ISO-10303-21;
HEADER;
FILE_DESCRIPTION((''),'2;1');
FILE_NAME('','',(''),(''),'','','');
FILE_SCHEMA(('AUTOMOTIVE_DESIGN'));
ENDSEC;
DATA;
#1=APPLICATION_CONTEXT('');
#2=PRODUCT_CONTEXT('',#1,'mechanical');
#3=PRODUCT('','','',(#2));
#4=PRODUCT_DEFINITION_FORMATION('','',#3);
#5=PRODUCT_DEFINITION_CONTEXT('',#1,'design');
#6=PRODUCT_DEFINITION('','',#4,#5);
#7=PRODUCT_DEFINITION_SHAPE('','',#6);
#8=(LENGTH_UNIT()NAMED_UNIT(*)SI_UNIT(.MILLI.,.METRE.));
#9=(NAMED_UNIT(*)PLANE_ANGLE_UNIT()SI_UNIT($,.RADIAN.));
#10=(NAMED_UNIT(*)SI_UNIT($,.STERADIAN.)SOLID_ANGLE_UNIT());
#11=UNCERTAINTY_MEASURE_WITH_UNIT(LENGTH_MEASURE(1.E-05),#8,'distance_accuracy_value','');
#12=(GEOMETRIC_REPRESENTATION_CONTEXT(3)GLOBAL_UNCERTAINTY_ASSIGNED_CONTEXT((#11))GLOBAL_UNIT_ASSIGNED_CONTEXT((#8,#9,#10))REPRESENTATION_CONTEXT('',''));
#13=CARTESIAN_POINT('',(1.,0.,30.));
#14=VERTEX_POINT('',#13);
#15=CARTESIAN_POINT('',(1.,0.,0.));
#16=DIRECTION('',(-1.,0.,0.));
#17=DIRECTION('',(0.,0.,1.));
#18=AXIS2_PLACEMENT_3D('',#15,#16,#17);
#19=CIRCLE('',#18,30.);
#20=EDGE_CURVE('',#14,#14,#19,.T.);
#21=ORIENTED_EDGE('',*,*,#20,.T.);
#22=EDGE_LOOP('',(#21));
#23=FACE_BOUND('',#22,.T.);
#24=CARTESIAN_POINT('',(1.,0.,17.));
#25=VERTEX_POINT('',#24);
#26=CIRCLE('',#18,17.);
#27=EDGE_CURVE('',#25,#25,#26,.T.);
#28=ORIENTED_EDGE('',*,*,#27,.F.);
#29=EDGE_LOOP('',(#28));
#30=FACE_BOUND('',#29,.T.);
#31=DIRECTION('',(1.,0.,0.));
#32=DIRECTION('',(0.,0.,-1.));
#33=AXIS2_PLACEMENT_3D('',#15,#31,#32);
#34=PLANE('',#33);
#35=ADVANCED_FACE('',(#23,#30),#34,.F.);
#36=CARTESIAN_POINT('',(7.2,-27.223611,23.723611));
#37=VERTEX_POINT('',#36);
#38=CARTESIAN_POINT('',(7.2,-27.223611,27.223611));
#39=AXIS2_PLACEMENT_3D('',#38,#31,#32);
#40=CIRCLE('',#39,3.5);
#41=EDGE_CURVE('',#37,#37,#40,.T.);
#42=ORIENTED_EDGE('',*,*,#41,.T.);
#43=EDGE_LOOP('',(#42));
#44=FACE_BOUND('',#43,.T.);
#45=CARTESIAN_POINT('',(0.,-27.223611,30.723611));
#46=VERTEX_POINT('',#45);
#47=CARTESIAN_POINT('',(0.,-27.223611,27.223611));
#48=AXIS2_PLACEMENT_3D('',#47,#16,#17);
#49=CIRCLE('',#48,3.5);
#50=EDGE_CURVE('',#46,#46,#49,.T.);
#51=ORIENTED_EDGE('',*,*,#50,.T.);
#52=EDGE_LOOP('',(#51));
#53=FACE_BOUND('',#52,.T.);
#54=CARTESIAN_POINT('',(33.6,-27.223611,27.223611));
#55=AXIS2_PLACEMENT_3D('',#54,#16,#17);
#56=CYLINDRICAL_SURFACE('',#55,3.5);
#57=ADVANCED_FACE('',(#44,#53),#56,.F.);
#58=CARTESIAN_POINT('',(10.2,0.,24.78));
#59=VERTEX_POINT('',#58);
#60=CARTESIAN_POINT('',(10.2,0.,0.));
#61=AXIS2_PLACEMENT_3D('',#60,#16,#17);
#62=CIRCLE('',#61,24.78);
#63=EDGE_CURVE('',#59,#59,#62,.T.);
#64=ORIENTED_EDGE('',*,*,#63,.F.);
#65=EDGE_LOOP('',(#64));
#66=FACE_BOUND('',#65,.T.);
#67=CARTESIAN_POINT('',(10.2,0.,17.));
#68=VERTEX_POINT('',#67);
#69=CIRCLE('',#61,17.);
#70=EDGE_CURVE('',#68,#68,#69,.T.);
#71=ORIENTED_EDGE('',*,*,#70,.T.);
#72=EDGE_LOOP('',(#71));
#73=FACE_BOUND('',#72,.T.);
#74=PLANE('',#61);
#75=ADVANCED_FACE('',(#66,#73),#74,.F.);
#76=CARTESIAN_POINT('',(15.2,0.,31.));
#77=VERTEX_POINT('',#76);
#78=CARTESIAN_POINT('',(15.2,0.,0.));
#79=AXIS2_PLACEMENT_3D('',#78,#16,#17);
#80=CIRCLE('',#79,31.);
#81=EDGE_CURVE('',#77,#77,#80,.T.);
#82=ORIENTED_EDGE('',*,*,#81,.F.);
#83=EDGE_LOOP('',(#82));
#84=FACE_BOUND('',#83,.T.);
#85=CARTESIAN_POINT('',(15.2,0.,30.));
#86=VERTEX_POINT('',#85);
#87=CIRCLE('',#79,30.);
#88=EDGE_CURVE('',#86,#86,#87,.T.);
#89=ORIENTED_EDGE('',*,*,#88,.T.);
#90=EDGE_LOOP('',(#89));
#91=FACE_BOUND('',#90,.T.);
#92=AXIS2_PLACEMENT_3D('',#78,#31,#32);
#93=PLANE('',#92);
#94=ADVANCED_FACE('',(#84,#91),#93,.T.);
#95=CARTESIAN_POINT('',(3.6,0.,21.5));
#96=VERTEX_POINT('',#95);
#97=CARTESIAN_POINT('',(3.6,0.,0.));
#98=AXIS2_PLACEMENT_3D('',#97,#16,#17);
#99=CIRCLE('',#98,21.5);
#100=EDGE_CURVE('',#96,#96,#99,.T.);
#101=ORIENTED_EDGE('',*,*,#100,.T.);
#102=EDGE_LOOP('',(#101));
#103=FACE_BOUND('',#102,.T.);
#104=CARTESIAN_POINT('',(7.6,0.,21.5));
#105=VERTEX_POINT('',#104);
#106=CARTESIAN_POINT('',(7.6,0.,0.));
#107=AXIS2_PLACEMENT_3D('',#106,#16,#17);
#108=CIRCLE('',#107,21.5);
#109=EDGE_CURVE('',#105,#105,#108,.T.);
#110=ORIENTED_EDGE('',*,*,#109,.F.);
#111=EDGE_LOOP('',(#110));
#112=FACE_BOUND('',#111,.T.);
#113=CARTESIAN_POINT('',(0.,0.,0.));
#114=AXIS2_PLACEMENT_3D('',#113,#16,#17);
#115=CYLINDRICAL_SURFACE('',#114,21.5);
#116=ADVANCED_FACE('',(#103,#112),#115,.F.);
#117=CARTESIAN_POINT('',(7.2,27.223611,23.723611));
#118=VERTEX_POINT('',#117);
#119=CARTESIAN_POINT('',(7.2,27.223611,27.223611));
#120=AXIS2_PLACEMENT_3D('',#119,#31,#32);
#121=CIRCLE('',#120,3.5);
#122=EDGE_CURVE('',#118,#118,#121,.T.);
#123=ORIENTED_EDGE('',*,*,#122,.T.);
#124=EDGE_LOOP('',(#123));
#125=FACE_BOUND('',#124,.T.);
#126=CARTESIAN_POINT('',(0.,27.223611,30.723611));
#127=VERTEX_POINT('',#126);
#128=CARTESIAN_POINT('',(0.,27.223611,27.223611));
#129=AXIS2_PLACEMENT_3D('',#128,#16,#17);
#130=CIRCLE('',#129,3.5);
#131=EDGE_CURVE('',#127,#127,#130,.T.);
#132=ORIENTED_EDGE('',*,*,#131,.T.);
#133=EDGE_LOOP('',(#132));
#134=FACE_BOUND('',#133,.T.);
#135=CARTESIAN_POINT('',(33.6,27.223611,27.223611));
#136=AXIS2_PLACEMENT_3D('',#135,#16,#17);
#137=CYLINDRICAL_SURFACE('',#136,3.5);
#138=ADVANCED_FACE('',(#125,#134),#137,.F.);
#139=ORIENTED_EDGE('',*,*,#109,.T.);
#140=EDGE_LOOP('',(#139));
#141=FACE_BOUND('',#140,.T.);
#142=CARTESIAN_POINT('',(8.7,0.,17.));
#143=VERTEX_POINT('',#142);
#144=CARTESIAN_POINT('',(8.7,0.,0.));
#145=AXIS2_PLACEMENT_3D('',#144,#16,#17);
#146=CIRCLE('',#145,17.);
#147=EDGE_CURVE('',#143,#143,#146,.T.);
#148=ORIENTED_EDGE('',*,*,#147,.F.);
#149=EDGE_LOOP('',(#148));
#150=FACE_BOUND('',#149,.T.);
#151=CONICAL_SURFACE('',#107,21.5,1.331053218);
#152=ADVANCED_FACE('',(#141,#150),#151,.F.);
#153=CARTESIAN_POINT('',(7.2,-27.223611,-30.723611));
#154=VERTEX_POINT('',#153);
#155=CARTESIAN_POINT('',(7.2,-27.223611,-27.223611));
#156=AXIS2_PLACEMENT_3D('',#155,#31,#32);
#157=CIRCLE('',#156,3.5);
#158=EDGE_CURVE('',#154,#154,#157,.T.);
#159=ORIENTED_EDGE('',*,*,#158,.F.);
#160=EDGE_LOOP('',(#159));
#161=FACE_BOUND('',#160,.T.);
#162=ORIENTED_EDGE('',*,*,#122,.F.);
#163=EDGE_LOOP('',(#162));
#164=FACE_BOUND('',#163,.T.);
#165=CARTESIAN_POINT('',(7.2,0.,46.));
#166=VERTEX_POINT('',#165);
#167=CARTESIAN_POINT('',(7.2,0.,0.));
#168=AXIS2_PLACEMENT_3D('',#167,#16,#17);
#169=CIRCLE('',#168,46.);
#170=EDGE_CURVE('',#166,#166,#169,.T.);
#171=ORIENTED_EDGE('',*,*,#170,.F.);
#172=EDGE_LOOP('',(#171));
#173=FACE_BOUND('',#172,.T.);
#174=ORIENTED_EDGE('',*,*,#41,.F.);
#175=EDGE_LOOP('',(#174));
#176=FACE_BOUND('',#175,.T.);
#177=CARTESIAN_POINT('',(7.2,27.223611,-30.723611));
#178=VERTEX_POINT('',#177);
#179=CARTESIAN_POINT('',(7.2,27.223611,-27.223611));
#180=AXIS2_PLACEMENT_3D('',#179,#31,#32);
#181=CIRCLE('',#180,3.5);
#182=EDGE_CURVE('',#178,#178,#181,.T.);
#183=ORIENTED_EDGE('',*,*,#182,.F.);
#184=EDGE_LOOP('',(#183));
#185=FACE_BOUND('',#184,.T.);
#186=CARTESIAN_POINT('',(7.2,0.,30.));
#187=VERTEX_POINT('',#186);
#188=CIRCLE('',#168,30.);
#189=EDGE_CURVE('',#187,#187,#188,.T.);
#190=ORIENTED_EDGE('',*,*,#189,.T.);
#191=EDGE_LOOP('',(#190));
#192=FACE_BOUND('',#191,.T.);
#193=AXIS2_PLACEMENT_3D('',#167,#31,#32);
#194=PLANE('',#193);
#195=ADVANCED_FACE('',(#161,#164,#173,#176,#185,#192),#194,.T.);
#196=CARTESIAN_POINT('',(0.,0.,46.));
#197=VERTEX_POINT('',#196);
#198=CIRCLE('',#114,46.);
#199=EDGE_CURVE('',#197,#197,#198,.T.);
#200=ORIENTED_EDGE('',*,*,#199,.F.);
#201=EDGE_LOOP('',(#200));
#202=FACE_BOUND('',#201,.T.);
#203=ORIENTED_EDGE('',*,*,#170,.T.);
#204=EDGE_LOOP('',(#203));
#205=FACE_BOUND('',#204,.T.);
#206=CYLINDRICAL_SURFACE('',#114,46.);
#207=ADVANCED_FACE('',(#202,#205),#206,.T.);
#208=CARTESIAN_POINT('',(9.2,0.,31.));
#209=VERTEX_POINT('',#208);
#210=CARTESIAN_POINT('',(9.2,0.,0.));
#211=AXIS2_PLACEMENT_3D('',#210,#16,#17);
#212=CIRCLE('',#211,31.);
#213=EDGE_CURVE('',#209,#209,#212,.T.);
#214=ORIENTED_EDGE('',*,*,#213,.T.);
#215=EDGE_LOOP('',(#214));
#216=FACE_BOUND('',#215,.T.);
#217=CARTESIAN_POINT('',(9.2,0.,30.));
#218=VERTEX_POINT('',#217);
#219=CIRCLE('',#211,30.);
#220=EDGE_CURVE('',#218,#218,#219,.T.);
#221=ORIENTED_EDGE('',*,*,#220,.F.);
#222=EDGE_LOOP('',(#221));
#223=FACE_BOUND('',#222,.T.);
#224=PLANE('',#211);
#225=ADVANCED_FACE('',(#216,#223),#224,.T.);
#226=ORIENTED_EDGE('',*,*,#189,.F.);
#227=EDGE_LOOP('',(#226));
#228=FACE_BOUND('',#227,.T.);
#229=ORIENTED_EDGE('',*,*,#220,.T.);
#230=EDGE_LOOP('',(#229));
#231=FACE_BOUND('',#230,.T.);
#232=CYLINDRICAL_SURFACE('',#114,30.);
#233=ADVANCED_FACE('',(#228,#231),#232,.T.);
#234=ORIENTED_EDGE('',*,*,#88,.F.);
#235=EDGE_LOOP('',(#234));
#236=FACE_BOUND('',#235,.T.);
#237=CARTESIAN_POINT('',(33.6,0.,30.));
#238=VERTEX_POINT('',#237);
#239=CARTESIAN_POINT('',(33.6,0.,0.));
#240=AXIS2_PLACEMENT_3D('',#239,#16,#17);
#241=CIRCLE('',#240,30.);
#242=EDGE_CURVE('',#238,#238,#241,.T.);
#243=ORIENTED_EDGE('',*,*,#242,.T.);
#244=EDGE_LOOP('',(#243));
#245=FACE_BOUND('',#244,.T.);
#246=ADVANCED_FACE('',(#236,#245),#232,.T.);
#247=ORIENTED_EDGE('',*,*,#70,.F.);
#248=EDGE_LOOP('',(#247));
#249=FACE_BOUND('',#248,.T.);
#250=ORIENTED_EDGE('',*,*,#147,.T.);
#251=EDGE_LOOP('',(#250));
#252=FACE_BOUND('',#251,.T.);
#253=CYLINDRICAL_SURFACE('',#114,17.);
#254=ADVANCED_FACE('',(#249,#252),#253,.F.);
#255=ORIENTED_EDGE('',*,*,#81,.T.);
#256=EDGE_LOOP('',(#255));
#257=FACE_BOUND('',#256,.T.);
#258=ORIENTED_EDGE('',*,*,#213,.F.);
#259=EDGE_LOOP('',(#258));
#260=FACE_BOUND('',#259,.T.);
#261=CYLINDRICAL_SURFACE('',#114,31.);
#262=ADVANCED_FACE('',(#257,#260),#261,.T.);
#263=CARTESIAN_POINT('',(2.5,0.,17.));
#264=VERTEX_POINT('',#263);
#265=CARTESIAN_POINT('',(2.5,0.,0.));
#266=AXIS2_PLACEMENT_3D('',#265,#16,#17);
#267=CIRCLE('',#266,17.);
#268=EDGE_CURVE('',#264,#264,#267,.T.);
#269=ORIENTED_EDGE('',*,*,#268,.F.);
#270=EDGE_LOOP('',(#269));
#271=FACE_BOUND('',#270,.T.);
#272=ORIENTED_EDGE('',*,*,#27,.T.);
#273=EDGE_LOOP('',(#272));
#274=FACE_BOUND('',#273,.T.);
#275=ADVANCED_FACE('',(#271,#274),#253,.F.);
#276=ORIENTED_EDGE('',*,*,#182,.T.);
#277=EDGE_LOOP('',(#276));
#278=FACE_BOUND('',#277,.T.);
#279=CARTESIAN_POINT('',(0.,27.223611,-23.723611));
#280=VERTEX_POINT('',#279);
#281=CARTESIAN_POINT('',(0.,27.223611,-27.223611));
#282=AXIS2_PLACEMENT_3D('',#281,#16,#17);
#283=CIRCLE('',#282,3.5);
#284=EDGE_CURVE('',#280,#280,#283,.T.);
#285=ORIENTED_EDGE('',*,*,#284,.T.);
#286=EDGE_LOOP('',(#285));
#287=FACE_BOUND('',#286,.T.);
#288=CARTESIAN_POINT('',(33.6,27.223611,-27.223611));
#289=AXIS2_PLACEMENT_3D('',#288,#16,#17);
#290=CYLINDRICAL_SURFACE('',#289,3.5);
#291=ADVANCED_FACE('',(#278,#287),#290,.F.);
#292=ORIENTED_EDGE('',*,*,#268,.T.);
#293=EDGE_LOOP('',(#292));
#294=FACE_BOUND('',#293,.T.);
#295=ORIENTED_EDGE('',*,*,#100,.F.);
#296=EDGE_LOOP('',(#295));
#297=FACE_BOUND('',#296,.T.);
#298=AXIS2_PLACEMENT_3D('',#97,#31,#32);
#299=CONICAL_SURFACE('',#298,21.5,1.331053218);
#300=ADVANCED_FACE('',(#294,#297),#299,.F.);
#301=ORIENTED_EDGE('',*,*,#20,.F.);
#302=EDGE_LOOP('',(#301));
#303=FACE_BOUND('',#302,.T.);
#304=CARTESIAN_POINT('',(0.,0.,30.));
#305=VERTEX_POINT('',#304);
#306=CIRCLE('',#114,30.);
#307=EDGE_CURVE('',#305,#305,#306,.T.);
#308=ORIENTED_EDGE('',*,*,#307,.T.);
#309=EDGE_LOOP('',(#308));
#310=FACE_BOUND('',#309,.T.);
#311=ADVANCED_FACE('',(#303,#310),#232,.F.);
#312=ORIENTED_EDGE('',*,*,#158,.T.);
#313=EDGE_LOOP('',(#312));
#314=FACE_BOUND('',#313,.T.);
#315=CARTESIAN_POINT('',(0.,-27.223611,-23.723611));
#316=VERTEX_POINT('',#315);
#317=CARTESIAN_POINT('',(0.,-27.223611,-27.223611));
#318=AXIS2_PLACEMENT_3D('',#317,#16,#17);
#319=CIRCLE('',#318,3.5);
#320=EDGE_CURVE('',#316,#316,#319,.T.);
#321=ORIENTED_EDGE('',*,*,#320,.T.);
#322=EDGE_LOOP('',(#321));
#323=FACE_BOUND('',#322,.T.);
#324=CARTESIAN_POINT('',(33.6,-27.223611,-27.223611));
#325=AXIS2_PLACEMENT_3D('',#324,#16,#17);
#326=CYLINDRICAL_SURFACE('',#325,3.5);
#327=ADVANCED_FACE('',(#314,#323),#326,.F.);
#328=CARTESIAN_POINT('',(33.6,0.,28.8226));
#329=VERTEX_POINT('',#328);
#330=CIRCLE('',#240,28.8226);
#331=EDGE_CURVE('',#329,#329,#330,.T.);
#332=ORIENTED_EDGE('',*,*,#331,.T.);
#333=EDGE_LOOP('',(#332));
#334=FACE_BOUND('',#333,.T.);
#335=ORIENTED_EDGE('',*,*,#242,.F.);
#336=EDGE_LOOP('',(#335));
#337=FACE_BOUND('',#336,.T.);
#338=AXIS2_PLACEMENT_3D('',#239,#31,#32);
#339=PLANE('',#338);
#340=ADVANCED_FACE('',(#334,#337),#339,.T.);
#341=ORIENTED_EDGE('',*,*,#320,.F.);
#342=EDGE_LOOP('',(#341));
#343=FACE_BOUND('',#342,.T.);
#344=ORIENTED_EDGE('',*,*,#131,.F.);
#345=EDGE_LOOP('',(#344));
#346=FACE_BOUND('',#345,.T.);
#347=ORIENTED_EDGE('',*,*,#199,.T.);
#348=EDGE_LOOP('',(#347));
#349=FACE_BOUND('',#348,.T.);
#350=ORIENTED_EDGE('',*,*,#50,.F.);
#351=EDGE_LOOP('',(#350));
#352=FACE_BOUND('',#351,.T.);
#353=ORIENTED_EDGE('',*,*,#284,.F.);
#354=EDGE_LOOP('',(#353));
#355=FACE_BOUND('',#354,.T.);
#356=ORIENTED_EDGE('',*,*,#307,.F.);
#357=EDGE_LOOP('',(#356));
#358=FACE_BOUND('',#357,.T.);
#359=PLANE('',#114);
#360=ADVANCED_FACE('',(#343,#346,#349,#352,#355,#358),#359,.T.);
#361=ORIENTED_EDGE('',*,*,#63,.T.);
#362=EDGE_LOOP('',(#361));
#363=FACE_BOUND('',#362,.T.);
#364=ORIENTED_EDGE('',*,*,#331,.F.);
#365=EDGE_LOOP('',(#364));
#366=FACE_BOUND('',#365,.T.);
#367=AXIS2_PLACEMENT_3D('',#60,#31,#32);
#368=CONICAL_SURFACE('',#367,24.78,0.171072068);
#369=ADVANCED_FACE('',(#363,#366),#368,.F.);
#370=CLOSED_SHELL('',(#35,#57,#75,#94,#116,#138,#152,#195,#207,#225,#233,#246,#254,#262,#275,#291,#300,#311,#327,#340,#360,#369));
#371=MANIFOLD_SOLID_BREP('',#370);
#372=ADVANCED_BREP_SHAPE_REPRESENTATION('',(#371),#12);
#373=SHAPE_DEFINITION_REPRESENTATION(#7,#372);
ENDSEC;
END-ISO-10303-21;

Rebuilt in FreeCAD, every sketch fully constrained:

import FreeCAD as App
import Part
import Sketcher

V = App.Vector
Q = App.Units.Quantity


def add_polygon(sketch, points):
    """Adds a closed chain of lines whose ends are joined by coincident constraints."""
    first, n = sketch.GeometryCount, len(points)
    for a, b in zip(points, points[1:] + points[:1]):
        sketch.addGeometry(Part.LineSegment(App.Vector(*a, 0), App.Vector(*b, 0)), False)
    for i in range(n):
        sketch.addConstraint(Sketcher.Constraint("Coincident", first + i, 2, first + (i + 1) % n, 1))

doc = App.newDocument("Part")
body = doc.addObject("PartDesign::Body", "Body")

sketch1 = body.newObject("Sketcher::SketchObject", "Sketch")
sketch1.AttachmentSupport = (doc.getObject("XY_Plane"), [""])
sketch1.MapMode = "FlatFace"
add_polygon(sketch1, [(2.5, 17), (3.6, 21.5), (7.6, 21.5), (8.7, 17), (10.2, 17), (10.2, 24.8), (33.6, 28.8), (33.6, 30), (15.2, 30), (15.2, 31), (9.2, 31), (9.2, 30), (7.2, 30), (7.2, 46), (0, 46), (0, 30), (1, 30), (1, 17)])
sketch1.addConstraint(Sketcher.Constraint("Horizontal", 1))
sketch1.addConstraint(Sketcher.Constraint("Horizontal", 3))
sketch1.addConstraint(Sketcher.Constraint("Vertical", 4))
sketch1.addConstraint(Sketcher.Constraint("Vertical", 6))
sketch1.addConstraint(Sketcher.Constraint("Horizontal", 7))
sketch1.addConstraint(Sketcher.Constraint("Vertical", 8))
sketch1.addConstraint(Sketcher.Constraint("Horizontal", 9))
sketch1.addConstraint(Sketcher.Constraint("Vertical", 10))
sketch1.addConstraint(Sketcher.Constraint("Horizontal", 11))
sketch1.addConstraint(Sketcher.Constraint("Vertical", 12))
sketch1.addConstraint(Sketcher.Constraint("Horizontal", 13))
sketch1.addConstraint(Sketcher.Constraint("Vertical", 14))
sketch1.addConstraint(Sketcher.Constraint("Horizontal", 15))
sketch1.addConstraint(Sketcher.Constraint("Vertical", 16))
sketch1.addConstraint(Sketcher.Constraint("Horizontal", 17))
sketch1.addConstraint(Sketcher.Constraint("PointOnObject", 13, 2, -2))
sketch1.addConstraint(Sketcher.Constraint("Horizontal", 7, 2, 10, 2))
sketch1.addConstraint(Sketcher.Constraint("Horizontal", 11, 2, 14, 2))
sketch1.addConstraint(Sketcher.Constraint("Horizontal", 3, 2, 16, 2))
sketch1.addConstraint(Sketcher.Constraint("Equal", 3, 17))
sketch1.addConstraint(Sketcher.Constraint("Equal", 15, 8))
sketch1.addConstraint(Sketcher.Constraint("Equal", 0, 2))
sketch1.addConstraint(Sketcher.Constraint("DistanceX", 1, 1, 1, 2, Q("4 mm")))
sketch1.addConstraint(Sketcher.Constraint("DistanceX", 9, 2, 9, 1, Q("6 mm")))
sketch1.addConstraint(Sketcher.Constraint("DistanceX", 11, 2, 11, 1, Q("2 mm")))
sketch1.addConstraint(Sketcher.Constraint("DistanceX", 15, 1, 15, 2, Q("1 mm")))
sketch1.addConstraint(Sketcher.Constraint("DistanceY", 12, 1, 12, 2, Q("16 mm")))
sketch1.addConstraint(Sketcher.Constraint("DistanceY", 16, 2, 16, 1, Q("13 mm")))
sketch1.addConstraint(Sketcher.Constraint("DistanceX", 3, 1, 3, 2, Q("1.5 mm")))
sketch1.addConstraint(Sketcher.Constraint("DistanceX", 7, 2, 7, 1, Q("18.4 mm")))
sketch1.addConstraint(Sketcher.Constraint("DistanceX", 13, 2, 13, 1, Q("7.2 mm")))
sketch1.addConstraint(Sketcher.Constraint("DistanceY", -1, 1, 2, 2, Q("17 mm")))
sketch1.addConstraint(Sketcher.Constraint("DistanceX", 1, 2, 5, 2, Q("26 mm")))
sketch1.addConstraint(Sketcher.Constraint("DistanceY", 4, 1, 4, 2, Q("7.78 mm")))
sketch1.addConstraint(Sketcher.Constraint("DistanceY", -1, 1, 0, 2, Q("21.5 mm")))
sketch1.addConstraint(Sketcher.Constraint("DistanceY", 6, 1, 6, 2, Q("1.1774 mm")))
revolution = body.newObject("PartDesign::Revolution", "Revolution")
revolution.Profile = sketch1
revolution.ReferenceAxis = (sketch1, ["H_Axis"])
revolution.Angle = 360

sketch2 = body.newObject("Sketcher::SketchObject", "Sketch001")
sketch2.AttachmentSupport = (doc.getObject("YZ_Plane"), [""])
sketch2.MapMode = "FlatFace"
sketch2.addGeometry(Part.Circle(V(27.2, -27.2, 0), V(0, 0, 1), 3.5), False)
sketch2.addGeometry(Part.Circle(V(27.2, 27.2, 0), V(0, 0, 1), 3.5), False)
sketch2.addGeometry(Part.Circle(V(-27.2, -27.2, 0), V(0, 0, 1), 3.5), False)
sketch2.addGeometry(Part.Circle(V(-27.2, 27.2, 0), V(0, 0, 1), 3.5), False)
sketch2.addConstraint(Sketcher.Constraint("Equal", 0, 1))
sketch2.addConstraint(Sketcher.Constraint("Equal", 1, 2))
sketch2.addConstraint(Sketcher.Constraint("Equal", 2, 3))
sketch2.addConstraint(Sketcher.Constraint("Symmetric", 1, 3, 2, 3, -1, 1))
sketch2.addConstraint(Sketcher.Constraint("Symmetric", 0, 3, 3, 3, -1, 1))
sketch2.addConstraint(Sketcher.Constraint("Symmetric", 0, 3, 2, 3, -2))
sketch2.addConstraint(Sketcher.Constraint("Diameter", 0, Q("7 mm")))
sketch2.addConstraint(Sketcher.Constraint("DistanceX", -1, 1, 0, 3, Q("27.223611 mm")))
sketch2.addConstraint(Sketcher.Constraint("DistanceY", 0, 3, -1, 1, Q("27.223611 mm")))
pocket1 = body.newObject("PartDesign::Pocket", "Pocket")
pocket1.Profile = sketch2
pocket1.Type = "ThroughAll"
pocket1.Reversed = True

doc.recompute()
